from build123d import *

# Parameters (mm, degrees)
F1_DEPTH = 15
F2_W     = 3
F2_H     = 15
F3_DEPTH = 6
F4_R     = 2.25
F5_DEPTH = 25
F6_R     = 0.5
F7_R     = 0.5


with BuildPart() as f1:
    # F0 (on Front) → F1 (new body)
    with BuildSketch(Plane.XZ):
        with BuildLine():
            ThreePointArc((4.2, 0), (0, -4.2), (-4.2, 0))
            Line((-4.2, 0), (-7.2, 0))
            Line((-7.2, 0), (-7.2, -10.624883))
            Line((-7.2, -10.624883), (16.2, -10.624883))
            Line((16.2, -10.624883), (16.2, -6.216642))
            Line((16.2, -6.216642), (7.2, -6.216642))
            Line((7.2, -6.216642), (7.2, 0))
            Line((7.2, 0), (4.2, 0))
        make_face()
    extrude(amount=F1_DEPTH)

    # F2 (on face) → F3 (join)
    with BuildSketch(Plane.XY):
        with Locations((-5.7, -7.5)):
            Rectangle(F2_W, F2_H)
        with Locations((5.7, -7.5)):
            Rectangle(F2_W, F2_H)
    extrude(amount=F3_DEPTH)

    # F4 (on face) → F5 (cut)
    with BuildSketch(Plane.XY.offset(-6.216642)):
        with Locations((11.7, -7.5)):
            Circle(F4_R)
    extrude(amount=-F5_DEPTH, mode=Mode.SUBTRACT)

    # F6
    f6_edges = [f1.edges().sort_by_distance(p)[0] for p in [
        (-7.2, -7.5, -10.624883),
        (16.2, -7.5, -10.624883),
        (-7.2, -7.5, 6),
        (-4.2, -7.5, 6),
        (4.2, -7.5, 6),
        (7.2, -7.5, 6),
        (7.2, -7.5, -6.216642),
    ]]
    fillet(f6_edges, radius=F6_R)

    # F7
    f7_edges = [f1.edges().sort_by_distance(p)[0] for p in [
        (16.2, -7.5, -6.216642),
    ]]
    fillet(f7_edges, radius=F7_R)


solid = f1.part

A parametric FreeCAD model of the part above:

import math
import FreeCAD as App
import Part
import Sketcher
Q = App.Units.Quantity


def edges_at(feature, points):
    """Names of the edges that pass closest to the given points."""
    edges = feature.Shape.Edges
    near = lambda p: min(range(len(edges)), key=lambda i: edges[i].distToShape(Part.Vertex(*p))[0])
    return sorted({f"Edge{near(p) + 1}" for p in points})


def add_polygon(sketch, points):
    """Adds a closed chain of lines whose ends are joined by coincident constraints."""
    first, n = sketch.GeometryCount, len(points)
    for a, b in zip(points, points[1:] + points[:1]):
        sketch.addGeometry(Part.LineSegment(App.Vector(*a, 0), App.Vector(*b, 0)), False)
    for i in range(n):
        sketch.addConstraint(Sketcher.Constraint("Coincident", first + i, 2, first + (i + 1) % n, 1))

doc = App.newDocument("Part")
body = doc.addObject("PartDesign::Body", "Body")

# Sketch on XZ plane
sketch1 = body.newObject("Sketcher::SketchObject", "Sketch")
sketch1.AttachmentSupport = (doc.getObject("XZ_Plane"), [""])
sketch1.MapMode = "FlatFace"
sketch1.addGeometry(Part.ArcOfCircle(Part.Circle(App.Vector(0, 0, 0), App.Vector(0, 0, 1), 4.2), math.radians(180), math.radians(360)), False)
sketch1.addGeometry(Part.LineSegment(App.Vector(-4.2, 0, 0), App.Vector(-7.2, 0, 0)), False)
sketch1.addGeometry(Part.LineSegment(App.Vector(-7.2, 0, 0), App.Vector(-7.2, -10.6, 0)), False)
sketch1.addGeometry(Part.LineSegment(App.Vector(-7.2, -10.6, 0), App.Vector(16.2, -10.6, 0)), False)
sketch1.addGeometry(Part.LineSegment(App.Vector(16.2, -10.6, 0), App.Vector(16.2, -6.2, 0)), False)
sketch1.addGeometry(Part.LineSegment(App.Vector(16.2, -6.2, 0), App.Vector(7.2, -6.2, 0)), False)
sketch1.addGeometry(Part.LineSegment(App.Vector(7.2, -6.2, 0), App.Vector(7.2, 0, 0)), False)
sketch1.addGeometry(Part.LineSegment(App.Vector(7.2, 0, 0), App.Vector(4.2, 0, 0)), False)
sketch1.addConstraint(Sketcher.Constraint("Coincident", 0, 1, 1, 1))
sketch1.addConstraint(Sketcher.Constraint("Coincident", 1, 2, 2, 1))
sketch1.addConstraint(Sketcher.Constraint("Coincident", 2, 2, 3, 1))
sketch1.addConstraint(Sketcher.Constraint("Coincident", 3, 2, 4, 1))
sketch1.addConstraint(Sketcher.Constraint("Coincident", 4, 2, 5, 1))
sketch1.addConstraint(Sketcher.Constraint("Coincident", 5, 2, 6, 1))
sketch1.addConstraint(Sketcher.Constraint("Coincident", 6, 2, 7, 1))
sketch1.addConstraint(Sketcher.Constraint("Coincident", 7, 2, 0, 2))
sketch1.addConstraint(Sketcher.Constraint("Horizontal", 1))
sketch1.addConstraint(Sketcher.Constraint("Vertical", 2))
sketch1.addConstraint(Sketcher.Constraint("Horizontal", 3))
sketch1.addConstraint(Sketcher.Constraint("Vertical", 4))
sketch1.addConstraint(Sketcher.Constraint("Horizontal", 5))
sketch1.addConstraint(Sketcher.Constraint("Vertical", 6))
sketch1.addConstraint(Sketcher.Constraint("Horizontal", 7))
sketch1.addConstraint(Sketcher.Constraint("Coincident", 0, 3, -1, 1))
sketch1.addConstraint(Sketcher.Constraint("Symmetric", 1, 2, 6, 2, -1, 1))
sketch1.addConstraint(Sketcher.Constraint("PointOnObject", 0, 1, -1))
sketch1.addConstraint(Sketcher.Constraint("Radius", 0, Q("4.2 mm")))
sketch1.addConstraint(Sketcher.Constraint("DistanceX", 1, 2, 1, 1, Q("3 mm")))
sketch1.addConstraint(Sketcher.Constraint("DistanceX", 5, 2, 5, 1, Q("9 mm")))
sketch1.addConstraint(Sketcher.Constraint("DistanceY", 4, 1, 4, 2, Q("4.408241 mm")))
sketch1.addConstraint(Sketcher.Constraint("DistanceY", 2, 2, 2, 1, Q("10.624883 mm")))
pad1 = body.newObject("PartDesign::Pad", "Pad")
pad1.Profile = sketch1
pad1.Length = 15

# Sketch on XY plane
sketch2 = body.newObject("Sketcher::SketchObject", "Sketch001")
sketch2.AttachmentSupport = (doc.getObject("XY_Plane"), [""])
sketch2.MapMode = "FlatFace"
add_polygon(sketch2, [(-7.2, 0), (-7.2, -15), (-4.2, -15), (-4.2, 0)])  # lines 0-3
add_polygon(sketch2, [(4.2, 0), (4.2, -15), (7.2, -15), (7.2, 0)])  # lines 4-7
sketch2.addConstraint(Sketcher.Constraint("Vertical", 0))
sketch2.addConstraint(Sketcher.Constraint("Horizontal", 1))
sketch2.addConstraint(Sketcher.Constraint("Vertical", 2))
sketch2.addConstraint(Sketcher.Constraint("Horizontal", 3))
sketch2.addConstraint(Sketcher.Constraint("Vertical", 4))
sketch2.addConstraint(Sketcher.Constraint("Horizontal", 5))
sketch2.addConstraint(Sketcher.Constraint("Vertical", 6))
sketch2.addConstraint(Sketcher.Constraint("Horizontal", 7))
sketch2.addConstraint(Sketcher.Constraint("Symmetric", 3, 2, 6, 2, -1, 1))
sketch2.addConstraint(Sketcher.Constraint("Symmetric", 1, 2, 4, 2, -2))
sketch2.addConstraint(Sketcher.Constraint("PointOnObject", 2, 2, -1))
sketch2.addConstraint(Sketcher.Constraint("DistanceX", 1, 1, 1, 2, Q("3 mm")))
sketch2.addConstraint(Sketcher.Constraint("DistanceY", 0, 2, 0, 1, Q("15 mm")))
sketch2.addConstraint(Sketcher.Constraint("DistanceX", 0, 2, -1, 1, Q("7.2 mm")))
pad2 = body.newObject("PartDesign::Pad", "Pad001")
pad2.Profile = sketch2
pad2.Length = 6

# Sketch on XY plane
sketch3 = body.newObject("Sketcher::SketchObject", "Sketch002")
sketch3.AttachmentSupport = (doc.getObject("XY_Plane"), [""])
sketch3.MapMode = "FlatFace"
sketch3.AttachmentOffset = App.Placement(App.Vector(0, 0, -6.216642), App.Rotation())
sketch3.addGeometry(Part.Circle(App.Vector(11.7, -7.5, 0), App.Vector(0, 0, 1), 2.2), False)
sketch3.addConstraint(Sketcher.Constraint("Diameter", 0, Q("4.5 mm")))
sketch3.addConstraint(Sketcher.Constraint("DistanceX", -1, 1, 0, 3, Q("11.7 mm")))
sketch3.addConstraint(Sketcher.Constraint("DistanceY", 0, 3, -1, 1, Q("7.5 mm")))
pocket1 = body.newObject("PartDesign::Pocket", "Pocket")
pocket1.Profile = sketch3
pocket1.Length = 25
doc.recompute()

fillet = body.newObject("PartDesign::Fillet", "Fillet")
fillet.Base = (pocket1, edges_at(pocket1, [
    (-7.2, -7.5, -10.625),
    (16.2, -7.5, -10.625),
    (-7.2, -7.5, 6),
    (-4.2, -7.5, 6),
    (4.2, -7.5, 6),
    (7.2, -7.5, 6),
    (7.2, -7.5, -6.217),
]))
fillet.Radius = 0.5
doc.recompute()

fillet2 = body.newObject("PartDesign::Fillet", "Fillet001")
fillet2.Base = (fillet, edges_at(fillet, [(16.2, -7.5, -6.217)]))
fillet2.Radius = 0.5

doc.recompute()
